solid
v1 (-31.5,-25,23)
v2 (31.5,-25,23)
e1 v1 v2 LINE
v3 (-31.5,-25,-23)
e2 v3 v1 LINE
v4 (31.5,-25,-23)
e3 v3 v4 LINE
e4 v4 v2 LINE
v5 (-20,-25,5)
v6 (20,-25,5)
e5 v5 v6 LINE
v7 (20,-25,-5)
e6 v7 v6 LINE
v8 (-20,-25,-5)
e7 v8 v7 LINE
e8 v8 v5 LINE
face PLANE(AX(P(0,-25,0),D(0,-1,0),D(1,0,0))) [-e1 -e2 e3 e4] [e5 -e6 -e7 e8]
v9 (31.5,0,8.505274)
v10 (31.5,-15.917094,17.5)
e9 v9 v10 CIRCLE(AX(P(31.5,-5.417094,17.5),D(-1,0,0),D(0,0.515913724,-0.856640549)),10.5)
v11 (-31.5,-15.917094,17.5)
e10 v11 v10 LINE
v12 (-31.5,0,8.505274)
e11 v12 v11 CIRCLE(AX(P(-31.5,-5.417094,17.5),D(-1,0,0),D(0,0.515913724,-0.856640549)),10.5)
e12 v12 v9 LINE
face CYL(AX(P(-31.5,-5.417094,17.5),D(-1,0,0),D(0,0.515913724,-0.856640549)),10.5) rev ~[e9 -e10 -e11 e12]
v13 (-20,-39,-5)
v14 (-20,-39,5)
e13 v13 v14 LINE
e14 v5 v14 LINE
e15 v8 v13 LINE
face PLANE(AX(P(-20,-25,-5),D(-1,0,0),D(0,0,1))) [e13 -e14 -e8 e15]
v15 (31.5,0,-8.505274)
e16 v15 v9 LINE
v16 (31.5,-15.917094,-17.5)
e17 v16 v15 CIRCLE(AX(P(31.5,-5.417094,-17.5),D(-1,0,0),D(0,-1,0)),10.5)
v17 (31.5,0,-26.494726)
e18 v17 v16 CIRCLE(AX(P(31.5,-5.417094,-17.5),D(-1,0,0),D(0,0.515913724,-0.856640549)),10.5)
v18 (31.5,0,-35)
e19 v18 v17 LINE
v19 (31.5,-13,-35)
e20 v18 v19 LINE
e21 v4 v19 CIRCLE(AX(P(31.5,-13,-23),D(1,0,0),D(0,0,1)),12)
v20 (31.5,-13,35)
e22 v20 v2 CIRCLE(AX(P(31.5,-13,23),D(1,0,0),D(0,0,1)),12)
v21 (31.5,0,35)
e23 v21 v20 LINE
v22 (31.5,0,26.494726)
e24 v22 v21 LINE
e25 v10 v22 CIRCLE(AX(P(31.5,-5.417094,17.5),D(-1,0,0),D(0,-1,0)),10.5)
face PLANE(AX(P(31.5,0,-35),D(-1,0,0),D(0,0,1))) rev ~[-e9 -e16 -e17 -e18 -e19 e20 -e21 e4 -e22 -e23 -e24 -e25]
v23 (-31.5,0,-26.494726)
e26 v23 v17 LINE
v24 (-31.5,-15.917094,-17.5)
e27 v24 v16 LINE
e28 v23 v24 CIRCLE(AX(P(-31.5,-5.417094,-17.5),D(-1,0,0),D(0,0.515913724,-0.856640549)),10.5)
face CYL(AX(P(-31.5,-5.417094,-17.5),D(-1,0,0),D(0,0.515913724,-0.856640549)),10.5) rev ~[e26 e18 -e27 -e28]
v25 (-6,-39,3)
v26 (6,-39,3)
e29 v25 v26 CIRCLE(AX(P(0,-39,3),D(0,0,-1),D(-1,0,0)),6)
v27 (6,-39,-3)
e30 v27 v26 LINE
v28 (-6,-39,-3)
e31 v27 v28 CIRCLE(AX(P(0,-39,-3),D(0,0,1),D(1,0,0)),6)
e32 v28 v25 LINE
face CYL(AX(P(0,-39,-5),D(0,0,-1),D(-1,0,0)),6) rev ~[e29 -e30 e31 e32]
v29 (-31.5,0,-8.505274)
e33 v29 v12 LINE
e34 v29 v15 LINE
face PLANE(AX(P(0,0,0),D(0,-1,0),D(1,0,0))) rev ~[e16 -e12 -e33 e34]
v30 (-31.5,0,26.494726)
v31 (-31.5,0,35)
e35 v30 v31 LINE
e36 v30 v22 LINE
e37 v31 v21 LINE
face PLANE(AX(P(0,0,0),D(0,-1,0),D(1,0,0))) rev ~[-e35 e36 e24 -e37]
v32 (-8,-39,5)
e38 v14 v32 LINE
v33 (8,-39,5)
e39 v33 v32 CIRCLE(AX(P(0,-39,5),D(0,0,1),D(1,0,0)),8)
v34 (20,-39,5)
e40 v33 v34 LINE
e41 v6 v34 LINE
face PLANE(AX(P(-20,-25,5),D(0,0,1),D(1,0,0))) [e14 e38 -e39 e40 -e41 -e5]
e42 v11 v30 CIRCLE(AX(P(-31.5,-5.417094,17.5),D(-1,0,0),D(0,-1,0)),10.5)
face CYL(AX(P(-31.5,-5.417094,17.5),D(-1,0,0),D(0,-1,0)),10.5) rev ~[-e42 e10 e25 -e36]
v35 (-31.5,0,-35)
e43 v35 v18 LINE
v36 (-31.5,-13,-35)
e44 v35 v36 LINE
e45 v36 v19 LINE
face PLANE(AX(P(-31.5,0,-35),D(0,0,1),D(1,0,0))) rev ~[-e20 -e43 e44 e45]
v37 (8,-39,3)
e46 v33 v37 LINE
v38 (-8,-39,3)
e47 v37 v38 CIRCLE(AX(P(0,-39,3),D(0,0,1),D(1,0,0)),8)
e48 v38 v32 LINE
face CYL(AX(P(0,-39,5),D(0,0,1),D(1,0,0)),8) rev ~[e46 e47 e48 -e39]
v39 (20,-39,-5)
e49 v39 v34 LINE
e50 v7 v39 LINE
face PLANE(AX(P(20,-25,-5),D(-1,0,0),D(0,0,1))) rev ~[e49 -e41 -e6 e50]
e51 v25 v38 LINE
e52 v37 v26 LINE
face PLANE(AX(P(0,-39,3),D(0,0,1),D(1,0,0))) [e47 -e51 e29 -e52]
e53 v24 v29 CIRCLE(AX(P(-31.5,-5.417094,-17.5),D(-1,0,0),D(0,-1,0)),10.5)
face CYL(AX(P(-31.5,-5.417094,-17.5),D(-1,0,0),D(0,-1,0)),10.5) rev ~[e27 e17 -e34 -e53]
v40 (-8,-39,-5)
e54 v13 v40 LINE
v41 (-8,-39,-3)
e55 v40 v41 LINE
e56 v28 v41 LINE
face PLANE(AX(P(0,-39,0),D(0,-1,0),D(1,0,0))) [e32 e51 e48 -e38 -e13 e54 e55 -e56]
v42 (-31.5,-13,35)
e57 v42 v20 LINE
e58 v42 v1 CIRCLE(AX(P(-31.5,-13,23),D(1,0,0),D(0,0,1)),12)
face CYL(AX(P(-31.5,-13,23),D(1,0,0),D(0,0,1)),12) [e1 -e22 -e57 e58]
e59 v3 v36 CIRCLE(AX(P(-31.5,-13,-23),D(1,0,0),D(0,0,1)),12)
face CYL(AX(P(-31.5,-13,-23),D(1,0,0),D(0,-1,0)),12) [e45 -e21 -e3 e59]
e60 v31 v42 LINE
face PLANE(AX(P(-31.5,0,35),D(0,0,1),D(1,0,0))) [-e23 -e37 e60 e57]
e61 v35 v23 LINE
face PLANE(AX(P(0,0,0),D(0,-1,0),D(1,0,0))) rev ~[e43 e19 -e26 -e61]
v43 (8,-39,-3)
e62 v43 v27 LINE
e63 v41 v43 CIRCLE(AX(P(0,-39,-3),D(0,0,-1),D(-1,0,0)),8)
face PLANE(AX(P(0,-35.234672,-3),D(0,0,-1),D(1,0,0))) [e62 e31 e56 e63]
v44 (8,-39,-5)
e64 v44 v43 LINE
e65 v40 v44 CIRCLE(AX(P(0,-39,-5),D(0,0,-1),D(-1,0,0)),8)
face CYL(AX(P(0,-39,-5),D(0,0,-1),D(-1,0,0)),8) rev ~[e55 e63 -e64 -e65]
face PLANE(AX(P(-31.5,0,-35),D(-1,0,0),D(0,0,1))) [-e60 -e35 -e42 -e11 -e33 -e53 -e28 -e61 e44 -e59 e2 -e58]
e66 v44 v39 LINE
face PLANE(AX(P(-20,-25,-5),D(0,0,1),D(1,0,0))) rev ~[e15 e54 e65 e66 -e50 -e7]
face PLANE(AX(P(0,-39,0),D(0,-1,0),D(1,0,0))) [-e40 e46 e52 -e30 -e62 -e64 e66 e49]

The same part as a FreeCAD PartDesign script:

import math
import FreeCAD as App
import Part
import Sketcher


def edges_at(feature, points):
    """Names of the edges that pass closest to the given points."""
    edges = feature.Shape.Edges
    near = lambda p: min(range(len(edges)), key=lambda i: edges[i].distToShape(Part.Vertex(*p))[0])
    return sorted({f"Edge{near(p) + 1}" for p in points})

doc = App.newDocument("Part")
params = doc.addObject("Spreadsheet::Sheet", "Params")
for row, (alias, value) in enumerate([
    ("sketch1_width", "63 mm"),
    ("sketch1_height", "70 mm"),
    ("pad1_length", "25 mm"),
    ("sketch2_radius", "10.5 mm"),
    ("sketch3_width", "40 mm"),
    ("sketch3_height", "10 mm"),
    ("pad2_length", "14 mm"),
    ("sketch4_radius", "6 mm"),
    ("sketch5_radius", "8 mm"),
    ("sketch5_radius2", "6 mm"),
    ("pocket3_length", "2 mm"),
    ("sketch6_diameter", "16 mm"),
    ("pocket4_length", "2 mm"),
    ("fillet_radius", "12 mm"),
], start=1):
    params.set(f"A{row}", alias)
    params.set(f"B{row}", "=" + value)
    params.setAlias(f"B{row}", alias)

body = doc.addObject("PartDesign::Body", "Body")

sketch1 = body.newObject("Sketcher::SketchObject", "Sketch")
sketch1.AttachmentSupport = (doc.getObject("XZ_Plane"), [""])
sketch1.MapMode = "FlatFace"
sketch1.addGeometry([
    Part.LineSegment(App.Vector(-31.5, 35, 0), App.Vector(-31.5, -35, 0)),
    Part.LineSegment(App.Vector(-31.5, -35, 0), App.Vector(31.5, -35, 0)),
    Part.LineSegment(App.Vector(31.5, -35, 0), App.Vector(31.5, 35, 0)),
    Part.LineSegment(App.Vector(31.5, 35, 0), App.Vector(-31.5, 35, 0)),
], False)
sketch1.addConstraint([
    Sketcher.Constraint("Coincident", 0, 2, 1, 1),
    Sketcher.Constraint("Coincident", 1, 2, 2, 1),
    Sketcher.Constraint("Coincident", 2, 2, 3, 1),
    Sketcher.Constraint("Coincident", 3, 2, 0, 1),
    Sketcher.Constraint("Vertical", 0),
    Sketcher.Constraint("Horizontal", 1),
    Sketcher.Constraint("Vertical", 2),
    Sketcher.Constraint("Horizontal", 3),
    Sketcher.Constraint("Symmetric", 0, 2, 2, 2, -1, 1),
    Sketcher.Constraint("DistanceX", 1, 1, 1, 2, 63.0),
    Sketcher.Constraint("DistanceY", 0, 2, 0, 1, 70.0),
])
sketch1.setExpression("Constraints[9]", "Params.sketch1_width")
sketch1.setExpression("Constraints[10]", "Params.sketch1_height")
pad1 = body.newObject("PartDesign::Pad", "Pad")
pad1.Profile = sketch1
pad1.setExpression("Length", "Params.pad1_length")

sketch2 = body.newObject("Sketcher::SketchObject", "Sketch001")
sketch2.AttachmentSupport = (doc.getObject("YZ_Plane"), [""])
sketch2.MapMode = "FlatFace"
sketch2.AttachmentOffset = App.Placement(App.Vector(0, 0, -31.5), App.Rotation())
sketch2.addGeometry([
    Part.ArcOfCircle(Part.Circle(App.Vector(-5.417094, 17.5, 0), App.Vector(0, 0, 1), 10.5), math.radians(180), math.radians(301.058549)),
    Part.ArcOfCircle(Part.Circle(App.Vector(-5.417094, 17.5, 0), App.Vector(0, 0, 1), 10.5), math.radians(58.941451), math.radians(180)),
    Part.LineSegment(App.Vector(0, 26.494726, 0), App.Vector(0, 8.505274, 0)),
    Part.ArcOfCircle(Part.Circle(App.Vector(-5.417094, -17.5, 0), App.Vector(0, 0, 1), 10.5), math.radians(58.941451), math.radians(180)),
    Part.LineSegment(App.Vector(0, -8.505274, 0), App.Vector(0, -26.494726, 0)),
    Part.ArcOfCircle(Part.Circle(App.Vector(-5.417094, -17.5, 0), App.Vector(0, 0, 1), 10.5), math.radians(180), math.radians(301.058549)),
], False)
sketch2.addConstraint([
    Sketcher.Constraint("Tangent", 0, 1, 1, 2),
    Sketcher.Constraint("Coincident", 1, 1, 2, 1),
    Sketcher.Constraint("Coincident", 2, 2, 0, 2),
    Sketcher.Constraint("Coincident", 3, 1, 4, 1),
    Sketcher.Constraint("Coincident", 4, 2, 5, 2),
    Sketcher.Constraint("Tangent", 5, 1, 3, 2),
    Sketcher.Constraint("Vertical", 2),
    Sketcher.Constraint("Vertical", 4),
    Sketcher.Constraint("Equal", 0, 1),
    Sketcher.Constraint("Equal", 1, 3),
    Sketcher.Constraint("Equal", 3, 5),
    Sketcher.Constraint("Symmetric", 2, 2, 3, 1, -1, 1),
    Sketcher.Constraint("Symmetric", 0, 3, 3, 3, -1),
    Sketcher.Constraint("Horizontal", 1, 3, 0, 1),
    Sketcher.Constraint("Horizontal", 3, 3, 5, 1),
    Sketcher.Constraint("Radius", 0, 10.5),
    Sketcher.Constraint("DistanceY", 3, 3, 0, 3, 35.0),
    Sketcher.Constraint("DistanceY", 2, 2, 2, 1, 17.989452),
])
sketch2.setExpression("Constraints[15]", "Params.sketch2_radius")
pocket1 = body.newObject("PartDesign::Pocket", "Pocket")
pocket1.Profile = sketch2
pocket1.Type = "ThroughAll"
pocket1.Reversed = True

sketch3 = body.newObject("Sketcher::SketchObject", "Sketch002")
sketch3.AttachmentSupport = (doc.getObject("XZ_Plane"), [""])
sketch3.MapMode = "FlatFace"
sketch3.AttachmentOffset = App.Placement(App.Vector(0, 0, 25), App.Rotation())
sketch3.addGeometry([
    Part.LineSegment(App.Vector(-20, 5, 0), App.Vector(-20, -5, 0)),
    Part.LineSegment(App.Vector(-20, -5, 0), App.Vector(20, -5, 0)),
    Part.LineSegment(App.Vector(20, -5, 0), App.Vector(20, 5, 0)),
    Part.LineSegment(App.Vector(20, 5, 0), App.Vector(-20, 5, 0)),
], False)
sketch3.addConstraint([
    Sketcher.Constraint("Coincident", 0, 2, 1, 1),
    Sketcher.Constraint("Coincident", 1, 2, 2, 1),
    Sketcher.Constraint("Coincident", 2, 2, 3, 1),
    Sketcher.Constraint("Coincident", 3, 2, 0, 1),
    Sketcher.Constraint("Vertical", 0),
    Sketcher.Constraint("Horizontal", 1),
    Sketcher.Constraint("Vertical", 2),
    Sketcher.Constraint("Horizontal", 3),
    Sketcher.Constraint("Symmetric", 0, 2, 2, 2, -1, 1),
    Sketcher.Constraint("DistanceX", 1, 1, 1, 2, 40.0),
    Sketcher.Constraint("DistanceY", 0, 2, 0, 1, 10.0),
])
sketch3.setExpression("Constraints[9]", "Params.sketch3_width")
sketch3.setExpression("Constraints[10]", "Params.sketch3_height")
pad2 = body.newObject("PartDesign::Pad", "Pad001")
pad2.Profile = sketch3
pad2.setExpression("Length", "Params.pad2_length")

sketch4 = body.newObject("Sketcher::SketchObject", "Sketch003")
sketch4.AttachmentSupport = (doc.getObject("XY_Plane"), [""])
sketch4.MapMode = "FlatFace"
sketch4.AttachmentOffset = App.Placement(App.Vector(0, 0, -5), App.Rotation())
sketch4.addGeometry([
    Part.ArcOfCircle(Part.Circle(App.Vector(0, -39, 0), App.Vector(0, 0, 1), 6), math.radians(0), math.radians(180)),
    Part.LineSegment(App.Vector(6, -39, 0), App.Vector(-6, -39, 0)),
], False)
sketch4.addConstraint([
    Sketcher.Constraint("Coincident", 0, 1, 1, 1),
    Sketcher.Constraint("Coincident", 1, 2, 0, 2),
    Sketcher.Constraint("Horizontal", 1),
    Sketcher.Constraint("PointOnObject", 0, 3, -2),
    Sketcher.Constraint("Radius", 0, 6.0),
    Sketcher.Constraint("DistanceY", 0, 3, -1, 1, 39.0),
    Sketcher.Constraint("DistanceY", 0, 1, -1, 1, 39.0),
])
sketch4.setExpression("Constraints[4]", "Params.sketch4_radius")
pocket2 = body.newObject("PartDesign::Pocket", "Pocket001")
pocket2.Profile = sketch4
pocket2.Type = "ThroughAll"
pocket2.Reversed = True

sketch5 = body.newObject("Sketcher::SketchObject", "Sketch004")
sketch5.AttachmentSupport = (doc.getObject("XY_Plane"), [""])
sketch5.MapMode = "FlatFace"
sketch5.AttachmentOffset = App.Placement(App.Vector(0, 0, -5), App.Rotation())
sketch5.addGeometry([
    Part.ArcOfCircle(Part.Circle(App.Vector(0, -39, 0), App.Vector(0, 0, 1), 8), math.radians(0), math.radians(180)),
    Part.LineSegment(App.Vector(8, -39, 0), App.Vector(6, -39, 0)),
    Part.ArcOfCircle(Part.Circle(App.Vector(0, -39, 0), App.Vector(0, 0, 1), 6), math.radians(0), math.radians(180)),
    Part.LineSegment(App.Vector(-6, -39, 0), App.Vector(-8, -39, 0)),
], False)
sketch5.addConstraint([
    Sketcher.Constraint("Coincident", 0, 1, 1, 1),
    Sketcher.Constraint("Coincident", 1, 2, 2, 1),
    Sketcher.Constraint("Coincident", 2, 2, 3, 1),
    Sketcher.Constraint("Coincident", 3, 2, 0, 2),
    Sketcher.Constraint("Horizontal", 1),
    Sketcher.Constraint("Horizontal", 3),
    Sketcher.Constraint("Coincident", 2, 3, 0, 3),
    Sketcher.Constraint("Symmetric", 1, 2, 2, 2, -2),
    Sketcher.Constraint("Horizontal", 2, 3, 0, 1),
    Sketcher.Constraint("Radius", 0, 8.0),
    Sketcher.Constraint("Radius", 2, 6.0),
    Sketcher.Constraint("DistanceY", 0, 3, -1, 1, 39.0),
])
sketch5.setExpression("Constraints[9]", "Params.sketch5_radius")
sketch5.setExpression("Constraints[10]", "Params.sketch5_radius2")
pocket3 = body.newObject("PartDesign::Pocket", "Pocket002")
pocket3.Profile = sketch5
pocket3.setExpression("Length", "Params.pocket3_length")
pocket3.Reversed = True

sketch6 = body.newObject("Sketcher::SketchObject", "Sketch005")
sketch6.AttachmentSupport = (doc.getObject("XY_Plane"), [""])
sketch6.MapMode = "FlatFace"
sketch6.AttachmentOffset = App.Placement(App.Vector(0, 0, 5), App.Rotation())
sketch6.addGeometry(Part.Circle(App.Vector(0, -39, 0), App.Vector(0, 0, 1), 8), False)
sketch6.addConstraint([
    Sketcher.Constraint("PointOnObject", 0, 3, -2),
    Sketcher.Constraint("Diameter", 0, 16.0),
    Sketcher.Constraint("DistanceY", 0, 3, -1, 1, 39.0),
])
sketch6.setExpression("Constraints[1]", "Params.sketch6_diameter")
pocket4 = body.newObject("PartDesign::Pocket", "Pocket003")
pocket4.Profile = sketch6
pocket4.setExpression("Length", "Params.pocket4_length")
doc.recompute()

fillet = body.newObject("PartDesign::Fillet", "Fillet")
fillet.Base = (pocket4, edges_at(pocket4, [(0, -25, 35), (0, -25, -35)]))
fillet.setExpression("Radius", "Params.fillet_radius")

doc.recompute()
